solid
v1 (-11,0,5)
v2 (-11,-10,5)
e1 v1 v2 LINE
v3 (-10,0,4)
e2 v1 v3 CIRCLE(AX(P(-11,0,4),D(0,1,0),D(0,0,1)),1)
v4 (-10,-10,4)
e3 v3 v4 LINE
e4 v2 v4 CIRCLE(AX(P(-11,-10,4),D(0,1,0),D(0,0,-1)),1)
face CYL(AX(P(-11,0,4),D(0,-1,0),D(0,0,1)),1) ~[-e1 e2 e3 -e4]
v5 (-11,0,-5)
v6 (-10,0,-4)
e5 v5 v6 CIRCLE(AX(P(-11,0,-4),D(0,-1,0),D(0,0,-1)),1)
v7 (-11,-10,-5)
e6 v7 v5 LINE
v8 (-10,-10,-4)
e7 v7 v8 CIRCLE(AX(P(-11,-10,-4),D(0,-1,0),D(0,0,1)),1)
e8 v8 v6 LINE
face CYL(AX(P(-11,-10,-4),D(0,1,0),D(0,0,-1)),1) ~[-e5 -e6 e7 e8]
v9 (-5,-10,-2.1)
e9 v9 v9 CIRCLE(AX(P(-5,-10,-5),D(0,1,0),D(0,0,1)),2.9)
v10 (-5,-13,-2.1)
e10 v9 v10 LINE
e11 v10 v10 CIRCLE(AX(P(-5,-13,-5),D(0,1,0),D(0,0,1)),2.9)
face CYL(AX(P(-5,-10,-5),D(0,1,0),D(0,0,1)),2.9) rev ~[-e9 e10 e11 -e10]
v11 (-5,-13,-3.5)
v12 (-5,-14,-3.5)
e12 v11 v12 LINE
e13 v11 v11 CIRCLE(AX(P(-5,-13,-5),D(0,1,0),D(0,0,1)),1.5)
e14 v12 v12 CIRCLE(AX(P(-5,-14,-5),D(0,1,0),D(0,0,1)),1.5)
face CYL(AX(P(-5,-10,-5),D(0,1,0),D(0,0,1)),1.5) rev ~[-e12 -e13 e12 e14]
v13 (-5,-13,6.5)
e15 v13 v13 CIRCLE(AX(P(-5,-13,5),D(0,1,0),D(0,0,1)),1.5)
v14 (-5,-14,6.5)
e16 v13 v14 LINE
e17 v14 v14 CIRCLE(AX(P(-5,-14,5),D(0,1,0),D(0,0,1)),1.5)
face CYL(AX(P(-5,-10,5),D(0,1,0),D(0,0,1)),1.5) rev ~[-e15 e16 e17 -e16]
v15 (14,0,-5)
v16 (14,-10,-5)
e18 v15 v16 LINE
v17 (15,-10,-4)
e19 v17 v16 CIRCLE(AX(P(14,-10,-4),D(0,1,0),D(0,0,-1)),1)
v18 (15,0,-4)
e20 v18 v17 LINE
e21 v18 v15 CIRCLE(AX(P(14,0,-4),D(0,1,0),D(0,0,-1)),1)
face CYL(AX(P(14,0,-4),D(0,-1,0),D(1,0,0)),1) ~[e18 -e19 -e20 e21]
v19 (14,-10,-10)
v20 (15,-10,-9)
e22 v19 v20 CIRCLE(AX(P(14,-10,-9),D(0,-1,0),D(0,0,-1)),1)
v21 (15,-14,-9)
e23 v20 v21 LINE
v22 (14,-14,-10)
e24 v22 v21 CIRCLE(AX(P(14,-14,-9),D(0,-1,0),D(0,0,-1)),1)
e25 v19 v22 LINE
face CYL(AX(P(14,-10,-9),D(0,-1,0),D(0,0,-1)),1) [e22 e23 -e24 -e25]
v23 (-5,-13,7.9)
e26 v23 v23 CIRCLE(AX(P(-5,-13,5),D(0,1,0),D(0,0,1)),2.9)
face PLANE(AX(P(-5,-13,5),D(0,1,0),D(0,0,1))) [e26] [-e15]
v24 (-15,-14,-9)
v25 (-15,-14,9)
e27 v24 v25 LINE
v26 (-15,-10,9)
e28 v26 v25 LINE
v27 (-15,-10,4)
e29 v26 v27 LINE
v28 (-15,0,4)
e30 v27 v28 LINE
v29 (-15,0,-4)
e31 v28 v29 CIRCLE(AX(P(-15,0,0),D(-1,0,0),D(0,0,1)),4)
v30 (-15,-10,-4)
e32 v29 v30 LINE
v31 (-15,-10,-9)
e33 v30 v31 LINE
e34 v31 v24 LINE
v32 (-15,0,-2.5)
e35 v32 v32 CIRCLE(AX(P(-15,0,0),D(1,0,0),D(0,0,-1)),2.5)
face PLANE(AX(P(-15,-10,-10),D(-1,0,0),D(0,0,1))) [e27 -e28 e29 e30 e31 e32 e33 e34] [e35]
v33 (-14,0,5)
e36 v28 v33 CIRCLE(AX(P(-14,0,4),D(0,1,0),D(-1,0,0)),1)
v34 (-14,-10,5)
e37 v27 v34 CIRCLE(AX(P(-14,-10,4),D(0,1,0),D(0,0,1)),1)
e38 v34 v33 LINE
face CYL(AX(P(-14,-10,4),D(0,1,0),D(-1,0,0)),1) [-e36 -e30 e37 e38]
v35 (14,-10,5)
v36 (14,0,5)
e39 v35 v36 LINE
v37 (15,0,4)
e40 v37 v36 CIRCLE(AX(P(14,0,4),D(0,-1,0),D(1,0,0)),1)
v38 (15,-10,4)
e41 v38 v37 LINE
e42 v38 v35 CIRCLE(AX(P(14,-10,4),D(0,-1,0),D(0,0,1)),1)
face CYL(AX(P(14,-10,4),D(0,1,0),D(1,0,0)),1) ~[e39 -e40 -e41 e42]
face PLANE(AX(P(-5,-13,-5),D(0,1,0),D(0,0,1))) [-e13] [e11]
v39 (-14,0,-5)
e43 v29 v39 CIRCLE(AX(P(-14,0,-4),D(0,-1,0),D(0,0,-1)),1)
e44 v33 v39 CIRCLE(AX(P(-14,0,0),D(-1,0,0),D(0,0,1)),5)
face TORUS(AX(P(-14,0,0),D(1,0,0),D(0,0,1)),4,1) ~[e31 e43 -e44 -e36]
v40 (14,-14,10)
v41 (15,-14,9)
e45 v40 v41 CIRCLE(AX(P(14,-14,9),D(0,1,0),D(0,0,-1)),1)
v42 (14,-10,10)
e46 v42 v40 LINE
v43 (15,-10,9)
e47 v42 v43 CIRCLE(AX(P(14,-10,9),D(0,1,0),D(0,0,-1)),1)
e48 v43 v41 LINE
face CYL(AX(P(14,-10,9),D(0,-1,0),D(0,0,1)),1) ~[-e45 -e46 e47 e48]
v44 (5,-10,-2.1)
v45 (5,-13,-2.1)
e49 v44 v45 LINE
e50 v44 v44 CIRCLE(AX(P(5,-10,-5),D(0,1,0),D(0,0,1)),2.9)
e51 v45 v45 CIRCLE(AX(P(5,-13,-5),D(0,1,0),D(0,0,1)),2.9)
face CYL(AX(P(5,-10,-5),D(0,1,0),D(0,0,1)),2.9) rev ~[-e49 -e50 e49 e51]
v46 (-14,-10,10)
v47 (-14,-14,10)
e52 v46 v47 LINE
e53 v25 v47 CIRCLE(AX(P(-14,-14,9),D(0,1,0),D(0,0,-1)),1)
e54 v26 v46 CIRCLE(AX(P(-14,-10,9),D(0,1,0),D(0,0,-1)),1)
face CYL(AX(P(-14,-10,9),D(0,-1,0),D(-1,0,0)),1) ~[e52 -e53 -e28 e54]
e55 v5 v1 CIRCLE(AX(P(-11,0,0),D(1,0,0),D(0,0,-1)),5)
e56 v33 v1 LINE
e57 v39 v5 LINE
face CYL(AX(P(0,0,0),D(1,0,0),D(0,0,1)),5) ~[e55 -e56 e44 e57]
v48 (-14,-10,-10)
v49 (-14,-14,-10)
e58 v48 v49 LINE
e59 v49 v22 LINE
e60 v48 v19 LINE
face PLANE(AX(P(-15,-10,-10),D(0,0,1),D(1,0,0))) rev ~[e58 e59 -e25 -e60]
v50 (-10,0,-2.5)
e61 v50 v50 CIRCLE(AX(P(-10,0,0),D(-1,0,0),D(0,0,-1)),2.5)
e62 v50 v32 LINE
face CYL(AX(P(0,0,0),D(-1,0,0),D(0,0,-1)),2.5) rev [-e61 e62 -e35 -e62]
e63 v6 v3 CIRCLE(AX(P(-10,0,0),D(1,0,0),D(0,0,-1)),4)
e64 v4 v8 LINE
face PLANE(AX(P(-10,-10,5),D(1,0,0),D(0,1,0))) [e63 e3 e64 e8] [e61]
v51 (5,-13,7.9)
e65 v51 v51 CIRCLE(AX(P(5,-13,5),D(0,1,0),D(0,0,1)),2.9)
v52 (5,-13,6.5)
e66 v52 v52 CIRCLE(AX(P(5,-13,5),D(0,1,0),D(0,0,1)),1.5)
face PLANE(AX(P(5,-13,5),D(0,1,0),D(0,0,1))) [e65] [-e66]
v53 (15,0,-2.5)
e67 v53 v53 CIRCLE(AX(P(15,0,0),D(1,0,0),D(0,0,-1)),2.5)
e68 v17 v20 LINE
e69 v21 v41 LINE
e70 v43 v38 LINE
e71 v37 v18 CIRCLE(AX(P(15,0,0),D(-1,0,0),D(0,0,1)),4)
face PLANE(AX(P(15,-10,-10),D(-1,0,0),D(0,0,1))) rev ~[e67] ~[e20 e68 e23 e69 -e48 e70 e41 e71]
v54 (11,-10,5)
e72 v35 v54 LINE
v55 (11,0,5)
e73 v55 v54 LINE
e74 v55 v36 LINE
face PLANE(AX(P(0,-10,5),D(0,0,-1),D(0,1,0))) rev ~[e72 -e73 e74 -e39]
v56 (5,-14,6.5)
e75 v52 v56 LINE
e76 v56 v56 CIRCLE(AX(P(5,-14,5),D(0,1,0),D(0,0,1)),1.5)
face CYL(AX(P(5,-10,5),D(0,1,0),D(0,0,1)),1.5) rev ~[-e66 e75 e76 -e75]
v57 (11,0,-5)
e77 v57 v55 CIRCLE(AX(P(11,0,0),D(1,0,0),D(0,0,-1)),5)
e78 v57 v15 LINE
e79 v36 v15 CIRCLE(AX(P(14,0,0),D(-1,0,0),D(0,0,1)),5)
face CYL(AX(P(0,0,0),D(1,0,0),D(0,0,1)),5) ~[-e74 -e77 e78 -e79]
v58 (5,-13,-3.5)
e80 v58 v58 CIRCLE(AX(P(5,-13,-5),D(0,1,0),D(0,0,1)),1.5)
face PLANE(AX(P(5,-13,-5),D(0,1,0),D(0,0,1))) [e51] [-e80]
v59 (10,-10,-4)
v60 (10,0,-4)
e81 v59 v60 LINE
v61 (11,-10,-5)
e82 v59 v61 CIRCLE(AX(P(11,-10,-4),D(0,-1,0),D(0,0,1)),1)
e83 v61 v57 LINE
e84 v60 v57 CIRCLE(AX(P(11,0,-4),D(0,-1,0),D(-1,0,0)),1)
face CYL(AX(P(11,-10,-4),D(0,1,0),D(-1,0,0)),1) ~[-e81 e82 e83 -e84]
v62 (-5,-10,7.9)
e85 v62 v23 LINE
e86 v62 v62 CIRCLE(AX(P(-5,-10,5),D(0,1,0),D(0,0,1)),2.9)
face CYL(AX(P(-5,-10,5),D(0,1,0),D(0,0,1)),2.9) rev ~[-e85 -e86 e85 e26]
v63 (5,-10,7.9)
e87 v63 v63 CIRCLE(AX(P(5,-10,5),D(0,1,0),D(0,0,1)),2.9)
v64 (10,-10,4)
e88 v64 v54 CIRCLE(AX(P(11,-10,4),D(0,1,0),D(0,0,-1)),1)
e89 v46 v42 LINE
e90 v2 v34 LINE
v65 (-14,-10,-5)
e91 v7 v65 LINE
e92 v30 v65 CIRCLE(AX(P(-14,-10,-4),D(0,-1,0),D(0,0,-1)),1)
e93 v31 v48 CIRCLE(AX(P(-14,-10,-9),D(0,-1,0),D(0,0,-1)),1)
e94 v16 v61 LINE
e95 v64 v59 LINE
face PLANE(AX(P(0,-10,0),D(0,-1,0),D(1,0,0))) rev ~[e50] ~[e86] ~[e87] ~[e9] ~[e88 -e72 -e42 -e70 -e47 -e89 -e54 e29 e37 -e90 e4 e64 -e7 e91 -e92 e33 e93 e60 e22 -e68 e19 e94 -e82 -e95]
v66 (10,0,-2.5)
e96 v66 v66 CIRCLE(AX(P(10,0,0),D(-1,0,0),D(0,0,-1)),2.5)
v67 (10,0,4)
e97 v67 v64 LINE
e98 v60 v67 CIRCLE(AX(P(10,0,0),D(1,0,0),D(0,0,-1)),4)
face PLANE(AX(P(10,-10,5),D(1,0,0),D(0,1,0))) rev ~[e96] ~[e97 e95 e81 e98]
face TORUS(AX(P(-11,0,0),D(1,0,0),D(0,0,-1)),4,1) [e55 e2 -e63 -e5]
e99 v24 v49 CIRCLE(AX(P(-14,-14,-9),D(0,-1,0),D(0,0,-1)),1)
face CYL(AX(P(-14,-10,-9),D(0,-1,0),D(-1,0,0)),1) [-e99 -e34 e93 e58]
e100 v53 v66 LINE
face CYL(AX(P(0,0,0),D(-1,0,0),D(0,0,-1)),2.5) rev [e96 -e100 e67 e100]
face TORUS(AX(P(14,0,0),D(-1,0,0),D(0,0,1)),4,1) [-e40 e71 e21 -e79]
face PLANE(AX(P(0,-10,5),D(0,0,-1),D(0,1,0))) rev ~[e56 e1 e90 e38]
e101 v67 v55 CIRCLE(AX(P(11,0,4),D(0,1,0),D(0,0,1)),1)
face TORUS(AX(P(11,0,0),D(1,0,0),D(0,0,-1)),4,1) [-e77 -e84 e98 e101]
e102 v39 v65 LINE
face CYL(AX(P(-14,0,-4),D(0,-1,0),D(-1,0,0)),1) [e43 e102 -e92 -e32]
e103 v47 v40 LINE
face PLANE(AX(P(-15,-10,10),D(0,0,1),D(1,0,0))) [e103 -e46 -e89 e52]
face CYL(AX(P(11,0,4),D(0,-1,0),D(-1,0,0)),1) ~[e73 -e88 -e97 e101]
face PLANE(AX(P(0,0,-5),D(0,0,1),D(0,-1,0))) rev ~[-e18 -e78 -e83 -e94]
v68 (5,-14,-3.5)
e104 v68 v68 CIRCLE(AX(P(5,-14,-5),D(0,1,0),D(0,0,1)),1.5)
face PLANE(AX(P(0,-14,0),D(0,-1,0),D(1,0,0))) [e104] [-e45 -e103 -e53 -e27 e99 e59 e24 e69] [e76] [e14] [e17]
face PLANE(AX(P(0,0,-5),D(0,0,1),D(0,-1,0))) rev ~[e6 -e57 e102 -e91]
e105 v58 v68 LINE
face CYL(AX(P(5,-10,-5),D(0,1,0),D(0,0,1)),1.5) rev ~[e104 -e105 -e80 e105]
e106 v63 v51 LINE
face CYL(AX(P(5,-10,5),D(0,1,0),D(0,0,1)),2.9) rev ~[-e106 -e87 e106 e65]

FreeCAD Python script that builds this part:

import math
import FreeCAD as App
import Part
import Sketcher
from FreeCAD import Vector
Q = App.Units.Quantity


def edges_at(feature, points):
    """Names of the edges that pass closest to the given points."""
    edges = feature.Shape.Edges
    near = lambda p: min(range(len(edges)), key=lambda i: edges[i].distToShape(Part.Vertex(*p))[0])
    return sorted({f"Edge{near(p) + 1}" for p in points})


def add_polygon(sketch, points):
    """Adds a closed chain of lines whose ends are joined by coincident constraints."""
    first, n = sketch.GeometryCount, len(points)
    for a, b in zip(points, points[1:] + points[:1]):
        sketch.addGeometry(Part.LineSegment(App.Vector(*a, 0), App.Vector(*b, 0)), False)
    for i in range(n):
        sketch.addConstraint(Sketcher.Constraint("Coincident", first + i, 2, first + (i + 1) % n, 1))

doc = App.newDocument("Part")
body = doc.addObject("PartDesign::Body", "Body")

# Sketch on YZ plane
sketch1 = body.newObject("Sketcher::SketchObject", "Sketch")
sketch1.AttachmentSupport = (doc.getObject("YZ_Plane"), [""])
sketch1.MapMode = "FlatFace"
sketch1.addGeometry([
    Part.LineSegment(Vector(-10, -5, 0), Vector(0, -5, 0)),  # 0
    Part.ArcOfCircle(Part.Circle(Vector(0, 0, 0), Vector(0, 0, 1), 5), math.radians(-90), math.radians(90)),  # 1
    Part.LineSegment(Vector(0, 5, 0), Vector(-10, 5, 0)),  # 2
    Part.LineSegment(Vector(-10, 5, 0), Vector(-10, -5, 0)),  # 3
    Part.Circle(Vector(0, 0, 0), Vector(0, 0, 1), 2.5),  # 4
], False)
sketch1.addConstraint([
    Sketcher.Constraint("Tangent", 0, 2, 1, 1),
    Sketcher.Constraint("Tangent", 1, 2, 2, 1),
    Sketcher.Constraint("Coincident", 2, 2, 3, 1),
    Sketcher.Constraint("Coincident", 3, 2, 0, 1),
    Sketcher.Constraint("Horizontal", 0),
    Sketcher.Constraint("Horizontal", 2),
    Sketcher.Constraint("Vertical", 3),
    Sketcher.Constraint("Coincident", 1, 3, -1, 1),
    Sketcher.Constraint("Coincident", 4, 3, -1, 1),
    Sketcher.Constraint("Equal", 2, 3),
    Sketcher.Constraint("Diameter", 4, Q("5 mm")),
    Sketcher.Constraint("Radius", 1, Q("5 mm")),
])
pad1 = body.newObject("PartDesign::Pad", "Pad")
pad1.Profile = sketch1
pad1.Length = 30
pad1.Midplane = True

# Sketch on XZ plane
sketch2 = body.newObject("Sketcher::SketchObject", "Sketch001")
sketch2.AttachmentSupport = (doc.getObject("XZ_Plane"), [""])
sketch2.MapMode = "FlatFace"
sketch2.AttachmentOffset = App.Placement(Vector(0, 0, 10), App.Rotation())
add_polygon(sketch2, [(-15, 10), (-15, -10), (15, -10), (15, 10)])  # lines 0-3
sketch2.addConstraint([
    Sketcher.Constraint("Vertical", 0),
    Sketcher.Constraint("Horizontal", 1),
    Sketcher.Constraint("Vertical", 2),
    Sketcher.Constraint("Horizontal", 3),
    Sketcher.Constraint("Symmetric", 0, 2, 2, 2, -1, 1),
    Sketcher.Constraint("DistanceX", 1, 1, 1, 2, Q("30 mm")),
    Sketcher.Constraint("DistanceY", 0, 2, 0, 1, Q("20 mm")),
])
pad2 = body.newObject("PartDesign::Pad", "Pad001")
pad2.Profile = sketch2
pad2.Length = 4

# Sketch on XZ plane
sketch3 = body.newObject("Sketcher::SketchObject", "Sketch002")
sketch3.AttachmentSupport = (doc.getObject("XZ_Plane"), [""])
sketch3.MapMode = "FlatFace"
sketch3.AttachmentOffset = App.Placement(Vector(0, 0, 10), App.Rotation())
sketch3.addGeometry(Part.Circle(Vector(5, 5, 0), Vector(0, 0, 1), 1.5), False)
sketch3.addConstraint([
    Sketcher.Constraint("Diameter", 0, Q("3 mm")),
    Sketcher.Constraint("DistanceX", -1, 1, 0, 3, Q("5 mm")),
    Sketcher.Constraint("DistanceY", -1, 1, 0, 3, Q("5 mm")),
])
pocket1 = body.newObject("PartDesign::Pocket", "Pocket")
pocket1.Profile = sketch3
pocket1.Type = "UpToFirst"
pocket1.Reversed = True

# Sketch on XZ plane
sketch4 = body.newObject("Sketcher::SketchObject", "Sketch003")
sketch4.AttachmentSupport = (doc.getObject("XZ_Plane"), [""])
sketch4.MapMode = "FlatFace"
sketch4.AttachmentOffset = App.Placement(Vector(0, 0, 10), App.Rotation())
sketch4.addGeometry(Part.Circle(Vector(5, -5, 0), Vector(0, 0, 1), 1.5), False)
sketch4.addConstraint([
    Sketcher.Constraint("Diameter", 0, Q("3 mm")),
    Sketcher.Constraint("DistanceX", -1, 1, 0, 3, Q("5 mm")),
    Sketcher.Constraint("DistanceY", 0, 3, -1, 1, Q("5 mm")),
])
pocket2 = body.newObject("PartDesign::Pocket", "Pocket001")
pocket2.Profile = sketch4
pocket2.Type = "UpToFirst"
pocket2.Reversed = True

# Sketch on XZ plane
sketch5 = body.newObject("Sketcher::SketchObject", "Sketch004")
sketch5.AttachmentSupport = (doc.getObject("XZ_Plane"), [""])
sketch5.MapMode = "FlatFace"
sketch5.AttachmentOffset = App.Placement(Vector(0, 0, 10), App.Rotation())
sketch5.addGeometry(Part.Circle(Vector(-5, -5, 0), Vector(0, 0, 1), 1.5), False)
sketch5.addConstraint([
    Sketcher.Constraint("Diameter", 0, Q("3 mm")),
    Sketcher.Constraint("DistanceX", 0, 3, -1, 1, Q("5 mm")),
    Sketcher.Constraint("DistanceY", 0, 3, -1, 1, Q("5 mm")),
])
pocket3 = body.newObject("PartDesign::Pocket", "Pocket002")
pocket3.Profile = sketch5
pocket3.Type = "UpToFirst"
pocket3.Reversed = True

# Sketch on XZ plane
sketch6 = body.newObject("Sketcher::SketchObject", "Sketch005")
sketch6.AttachmentSupport = (doc.getObject("XZ_Plane"), [""])
sketch6.MapMode = "FlatFace"
sketch6.AttachmentOffset = App.Placement(Vector(0, 0, 10), App.Rotation())
sketch6.addGeometry(Part.Circle(Vector(-5, 5, 0), Vector(0, 0, 1), 1.5), False)
sketch6.addConstraint([
    Sketcher.Constraint("Diameter", 0, Q("3 mm")),
    Sketcher.Constraint("DistanceX", 0, 3, -1, 1, Q("5 mm")),
    Sketcher.Constraint("DistanceY", -1, 1, 0, 3, Q("5 mm")),
])
pocket4 = body.newObject("PartDesign::Pocket", "Pocket003")
pocket4.Profile = sketch6
pocket4.Type = "UpToFirst"
pocket4.Reversed = True

# Sketch on XY plane
sketch7 = body.newObject("Sketcher::SketchObject", "Sketch006")
sketch7.AttachmentSupport = (doc.getObject("XY_Plane"), [""])
sketch7.MapMode = "FlatFace"
sketch7.AttachmentOffset = App.Placement(Vector(0, 0, 5), App.Rotation())
add_polygon(sketch7, [(-10, 12), (-10, -10), (10, -10), (10, 12)])  # lines 0-3
sketch7.addConstraint([
    Sketcher.Constraint("Vertical", 0),
    Sketcher.Constraint("Horizontal", 1),
    Sketcher.Constraint("Vertical", 2),
    Sketcher.Constraint("Horizontal", 3),
    Sketcher.Constraint("DistanceX", 1, 1, 1, 2, Q("20 mm")),
    Sketcher.Constraint("DistanceX", 0, 2, -1, 1, Q("10 mm")),
    Sketcher.Constraint("DistanceY", 0, 2, -1, 1, Q("10 mm")),
    Sketcher.Constraint("DistanceY", 0, 2, 0, 1, Q("21.54371 mm")),
])
pocket5 = body.newObject("PartDesign::Pocket", "Pocket004")
pocket5.Profile = sketch7
pocket5.Type = "ThroughAll"

# Sketch on XZ plane
sketch8 = body.newObject("Sketcher::SketchObject", "Sketch007")
sketch8.AttachmentSupport = (doc.getObject("XZ_Plane"), [""])
sketch8.MapMode = "FlatFace"
sketch8.AttachmentOffset = App.Placement(Vector(0, 0, 10), App.Rotation())
sketch8.addGeometry([
    Part.Circle(Vector(-5, -5, 0), Vector(0, 0, 1), 2.9),
    Part.Circle(Vector(5, -5, 0), Vector(0, 0, 1), 2.9),
    Part.Circle(Vector(5, 5, 0), Vector(0, 0, 1), 2.9),
    Part.Circle(Vector(-5, 5, 0), Vector(0, 0, 1), 2.9),
], False)
sketch8.addConstraint([
    Sketcher.Constraint("Equal", 0, 1),
    Sketcher.Constraint("Equal", 1, 2),
    Sketcher.Constraint("Equal", 2, 3),
    Sketcher.Constraint("Symmetric", 0, 3, 2, 3, -1, 1),
    Sketcher.Constraint("Symmetric", 1, 3, 3, 3, -1, 1),
    Sketcher.Constraint("Symmetric", 0, 3, 1, 3, -2),
    Sketcher.Constraint("Diameter", 0, Q("5.8 mm")),
    Sketcher.Constraint("DistanceX", 0, 3, -1, 1, Q("5 mm")),
    Sketcher.Constraint("DistanceY", 0, 3, -1, 1, Q("5 mm")),
])
pocket6 = body.newObject("PartDesign::Pocket", "Pocket005")
pocket6.Profile = sketch8
pocket6.Length = 3
pocket6.Reversed = True
doc.recompute()

fillet = body.newObject("PartDesign::Fillet", "Fillet")
fillet.Base = (pocket6, edges_at(pocket6, [
    (15, -5, -5),
    (-15, -12, 10),
    (-15, -12, -10),
    (15, -12, -10),
    (15, -12, 10),
    (15, 5, 0),
    (-15, -5, -5),
    (-15, -5, 5),
    (-15, 5, 0),
    (-10, 5, 0),
    (-10, -5, -5),
    (10, -5, -5),
    (10, 5, 0),
    (10, -5, 5),
    (-10, -5, 5),
    (15, -5, 5),
]))
fillet.Radius = 1

doc.recompute()
